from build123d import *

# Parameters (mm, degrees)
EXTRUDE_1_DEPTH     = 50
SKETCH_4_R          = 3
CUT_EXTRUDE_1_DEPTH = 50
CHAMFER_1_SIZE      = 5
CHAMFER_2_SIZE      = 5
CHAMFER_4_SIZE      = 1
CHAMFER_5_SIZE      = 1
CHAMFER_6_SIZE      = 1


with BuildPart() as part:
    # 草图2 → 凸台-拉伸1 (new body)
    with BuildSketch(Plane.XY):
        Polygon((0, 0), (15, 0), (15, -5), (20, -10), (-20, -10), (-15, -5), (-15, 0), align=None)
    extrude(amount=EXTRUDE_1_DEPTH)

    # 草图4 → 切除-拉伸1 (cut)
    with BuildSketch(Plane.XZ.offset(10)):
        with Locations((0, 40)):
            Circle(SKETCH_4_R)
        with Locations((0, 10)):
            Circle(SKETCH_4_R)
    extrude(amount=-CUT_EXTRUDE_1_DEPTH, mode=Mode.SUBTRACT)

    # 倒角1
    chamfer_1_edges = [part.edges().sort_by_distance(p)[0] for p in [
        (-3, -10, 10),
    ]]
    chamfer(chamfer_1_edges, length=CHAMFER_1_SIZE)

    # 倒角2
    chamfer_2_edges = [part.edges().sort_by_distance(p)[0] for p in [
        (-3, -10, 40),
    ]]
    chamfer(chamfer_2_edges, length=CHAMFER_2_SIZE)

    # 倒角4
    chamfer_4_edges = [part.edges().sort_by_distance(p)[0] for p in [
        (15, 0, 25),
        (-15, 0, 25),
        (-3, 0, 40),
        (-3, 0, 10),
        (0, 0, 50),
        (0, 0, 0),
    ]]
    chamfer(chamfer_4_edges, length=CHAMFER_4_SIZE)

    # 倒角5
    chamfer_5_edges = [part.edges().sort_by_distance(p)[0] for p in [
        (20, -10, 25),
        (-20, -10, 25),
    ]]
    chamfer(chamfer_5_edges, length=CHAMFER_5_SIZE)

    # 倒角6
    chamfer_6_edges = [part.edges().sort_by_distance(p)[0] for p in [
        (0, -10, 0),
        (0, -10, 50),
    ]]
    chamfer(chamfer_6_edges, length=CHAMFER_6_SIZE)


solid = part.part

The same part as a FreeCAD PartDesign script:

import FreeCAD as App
import Part
import Sketcher

V = App.Vector


def edges_at(feature, points):
    """Names of the edges that pass closest to the given points."""
    edges = feature.Shape.Edges
    near = lambda p: min(range(len(edges)), key=lambda i: edges[i].distToShape(Part.Vertex(*p))[0])
    return sorted({f"Edge{near(p) + 1}" for p in points})

doc = App.newDocument("Part")
params = doc.addObject("Spreadsheet::Sheet", "Params")
for row, (alias, value) in enumerate([
    ("sketch1_width", "30 mm"),
    ("sketch1_width2", "40 mm"),
    ("sketch1_height", "5 mm"),
    ("pad1_length", "50 mm"),
    ("sketch2_diameter", "6 mm"),
    ("pocket1_length", "50 mm"),
    ("chamfer_size", "5 mm"),
    ("chamfer2_size", "5 mm"),
    ("chamfer3_size", "1 mm"),
    ("chamfer4_size", "1 mm"),
    ("chamfer5_size", "1 mm"),
], start=1):
    params.set(f"A{row}", alias)
    params.set(f"B{row}", "=" + value)
    params.setAlias(f"B{row}", alias)

body = doc.addObject("PartDesign::Body", "Body")

# Sketch on XY plane
sketch1 = body.newObject("Sketcher::SketchObject", "Sketch")
sketch1.AttachmentSupport = (doc.getObject("XY_Plane"), [""])
sketch1.MapMode = "FlatFace"
sketch1.addGeometry([
    Part.LineSegment(V(15, 0, 0), V(-15, 0, 0)),  # 0
    Part.LineSegment(V(-15, 0, 0), V(-15, -5, 0)),  # 1
    Part.LineSegment(V(-15, -5, 0), V(-20, -10, 0)),  # 2
    Part.LineSegment(V(-20, -10, 0), V(20, -10, 0)),  # 3
    Part.LineSegment(V(20, -10, 0), V(15, -5, 0)),  # 4
    Part.LineSegment(V(15, -5, 0), V(15, 0, 0)),  # 5
], False)
sketch1.addConstraint([
    Sketcher.Constraint("Coincident", 0, 2, 1, 1),
    Sketcher.Constraint("Coincident", 1, 2, 2, 1),
    Sketcher.Constraint("Coincident", 2, 2, 3, 1),
    Sketcher.Constraint("Coincident", 3, 2, 4, 1),
    Sketcher.Constraint("Coincident", 4, 2, 5, 1),
    Sketcher.Constraint("Coincident", 5, 2, 0, 1),
    Sketcher.Constraint("Horizontal", 0),
    Sketcher.Constraint("Vertical", 1),
    Sketcher.Constraint("Horizontal", 3),
    Sketcher.Constraint("Vertical", 5),
    Sketcher.Constraint("Symmetric", 0, 2, 5, 2, -1, 1),
    Sketcher.Constraint("Perpendicular", 2, 4),
    Sketcher.Constraint("Horizontal", 1, 2, 4, 2),
    Sketcher.Constraint("Equal", 2, 4),
    Sketcher.Constraint("DistanceX", 0, 2, 0, 1, 30.0),
    Sketcher.Constraint("DistanceX", 3, 1, 3, 2, 40.0),
    Sketcher.Constraint("DistanceY", 1, 2, 1, 1, 5.0),
])
sketch1.setExpression("Constraints[14]", "Params.sketch1_width")
sketch1.setExpression("Constraints[15]", "Params.sketch1_width2")
sketch1.setExpression("Constraints[16]", "Params.sketch1_height")
pad1 = body.newObject("PartDesign::Pad", "Pad")
pad1.Profile = sketch1
pad1.setExpression("Length", "Params.pad1_length")

# Sketch on XZ plane
sketch2 = body.newObject("Sketcher::SketchObject", "Sketch001")
sketch2.AttachmentSupport = (doc.getObject("XZ_Plane"), [""])
sketch2.MapMode = "FlatFace"
sketch2.AttachmentOffset = App.Placement(V(0, 0, 10), App.Rotation())
sketch2.addGeometry([
    Part.Circle(V(0, 40, 0), V(0, 0, 1), 3),
    Part.Circle(V(0, 10, 0), V(0, 0, 1), 3),
], False)
sketch2.addConstraint([
    Sketcher.Constraint("Equal", 0, 1),
    Sketcher.Constraint("PointOnObject", 0, 3, -2),
    Sketcher.Constraint("PointOnObject", 1, 3, -2),
    Sketcher.Constraint("Diameter", 0, 6.0),
    Sketcher.Constraint("DistanceY", -1, 1, 0, 3, 40.0),
    Sketcher.Constraint("DistanceY", -1, 1, 1, 3, 10.0),
])
sketch2.setExpression("Constraints[3]", "Params.sketch2_diameter")
pocket1 = body.newObject("PartDesign::Pocket", "Pocket")
pocket1.Profile = sketch2
pocket1.setExpression("Length", "Params.pocket1_length")
doc.recompute()

chamfer = body.newObject("PartDesign::Chamfer", "Chamfer")
chamfer.Base = (pocket1, edges_at(pocket1, [(-3, -10, 10)]))
chamfer.setExpression("Size", "Params.chamfer_size")
doc.recompute()

chamfer2 = body.newObject("PartDesign::Chamfer", "Chamfer001")
chamfer2.Base = (chamfer, edges_at(chamfer, [(-3, -10, 40)]))
chamfer2.setExpression("Size", "Params.chamfer2_size")
doc.recompute()

chamfer3 = body.newObject("PartDesign::Chamfer", "Chamfer002")
chamfer3.Base = (chamfer2, edges_at(chamfer2, [
    (15, 0, 25),
    (-15, 0, 25),
    (-3, 0, 40),
    (-3, 0, 10),
    (0, 0, 50),
    (0, 0, 0),
]))
chamfer3.setExpression("Size", "Params.chamfer3_size")
doc.recompute()

chamfer4 = body.newObject("PartDesign::Chamfer", "Chamfer003")
chamfer4.Base = (chamfer3, edges_at(chamfer3, [(20, -10, 25), (-20, -10, 25)]))
chamfer4.setExpression("Size", "Params.chamfer4_size")
doc.recompute()

chamfer5 = body.newObject("PartDesign::Chamfer", "Chamfer004")
chamfer5.Base = (chamfer4, edges_at(chamfer4, [(0, -10, 0), (0, -10, 50)]))
chamfer5.setExpression("Size", "Params.chamfer5_size")

doc.recompute()
